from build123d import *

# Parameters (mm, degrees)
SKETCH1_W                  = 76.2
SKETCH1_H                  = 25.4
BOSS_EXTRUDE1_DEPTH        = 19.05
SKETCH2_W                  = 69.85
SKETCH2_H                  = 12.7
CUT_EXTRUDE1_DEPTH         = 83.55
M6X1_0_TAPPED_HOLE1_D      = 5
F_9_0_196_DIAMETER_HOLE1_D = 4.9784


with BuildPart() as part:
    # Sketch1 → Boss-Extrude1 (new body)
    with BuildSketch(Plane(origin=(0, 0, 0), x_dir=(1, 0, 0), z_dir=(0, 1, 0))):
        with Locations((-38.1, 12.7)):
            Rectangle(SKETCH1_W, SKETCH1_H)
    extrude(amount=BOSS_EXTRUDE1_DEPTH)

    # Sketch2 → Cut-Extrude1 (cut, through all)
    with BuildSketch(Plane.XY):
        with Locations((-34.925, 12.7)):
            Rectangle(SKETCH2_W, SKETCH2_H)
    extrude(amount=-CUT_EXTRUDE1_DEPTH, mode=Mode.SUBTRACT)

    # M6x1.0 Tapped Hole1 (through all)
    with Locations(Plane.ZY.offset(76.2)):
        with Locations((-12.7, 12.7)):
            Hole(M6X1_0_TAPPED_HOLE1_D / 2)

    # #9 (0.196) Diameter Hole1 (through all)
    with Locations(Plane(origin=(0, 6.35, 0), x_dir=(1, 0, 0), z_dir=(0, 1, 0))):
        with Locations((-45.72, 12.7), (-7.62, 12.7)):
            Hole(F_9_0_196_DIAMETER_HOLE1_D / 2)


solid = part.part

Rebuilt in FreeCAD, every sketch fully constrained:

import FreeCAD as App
import Part
import Sketcher
Q = App.Units.Quantity

doc = App.newDocument("Part")
body = doc.addObject("PartDesign::Body", "Body")

# Sketch on XZ plane
sketch1 = body.newObject("Sketcher::SketchObject", "Sketch")
sketch1.AttachmentSupport = (doc.getObject("XZ_Plane"), [""])
sketch1.MapMode = "FlatFace"
sketch1.addGeometry([
    Part.LineSegment(App.Vector(-76, -25, 0), App.Vector(-76, 0, 0)),
    Part.LineSegment(App.Vector(-76, 0, 0), App.Vector(0, 0, 0)),
    Part.LineSegment(App.Vector(0, 0, 0), App.Vector(0, -25, 0)),
    Part.LineSegment(App.Vector(0, -25, 0), App.Vector(-76, -25, 0)),
], False)
sketch1.addConstraint([
    Sketcher.Constraint("Coincident", 0, 2, 1, 1),
    Sketcher.Constraint("Coincident", 1, 2, 2, 1),
    Sketcher.Constraint("Coincident", 2, 2, 3, 1),
    Sketcher.Constraint("Coincident", 3, 2, 0, 1),
    Sketcher.Constraint("Vertical", 0),
    Sketcher.Constraint("Horizontal", 1),
    Sketcher.Constraint("Vertical", 2),
    Sketcher.Constraint("Horizontal", 3),
    Sketcher.Constraint("Coincident", 1, 2, -1, 1),
    Sketcher.Constraint("DistanceX", 1, 1, 1, 2, Q("3 in")),
    Sketcher.Constraint("DistanceY", 0, 1, 0, 2, Q("1 in")),
])
pad1 = body.newObject("PartDesign::Pad", "Pad")
pad1.Profile = sketch1
pad1.Length = Q("0.75 in")
pad1.Reversed = True

# Sketch on XY plane
sketch2 = body.newObject("Sketcher::SketchObject", "Sketch001")
sketch2.AttachmentSupport = (doc.getObject("XY_Plane"), [""])
sketch2.MapMode = "FlatFace"
sketch2.addGeometry([
    Part.LineSegment(App.Vector(-70, 19, 0), App.Vector(-70, 6, 0)),
    Part.LineSegment(App.Vector(-70, 6, 0), App.Vector(0, 6, 0)),
    Part.LineSegment(App.Vector(0, 6, 0), App.Vector(0, 19, 0)),
    Part.LineSegment(App.Vector(0, 19, 0), App.Vector(-70, 19, 0)),
], False)
sketch2.addConstraint([
    Sketcher.Constraint("Coincident", 0, 2, 1, 1),
    Sketcher.Constraint("Coincident", 1, 2, 2, 1),
    Sketcher.Constraint("Coincident", 2, 2, 3, 1),
    Sketcher.Constraint("Coincident", 3, 2, 0, 1),
    Sketcher.Constraint("Vertical", 0),
    Sketcher.Constraint("Horizontal", 1),
    Sketcher.Constraint("Vertical", 2),
    Sketcher.Constraint("Horizontal", 3),
    Sketcher.Constraint("PointOnObject", 1, 2, -2),
    Sketcher.Constraint("DistanceY", 0, 2, 0, 1, Q("0.5 in")),
    Sketcher.Constraint("DistanceX", 1, 1, 1, 2, Q("2.75 in")),
    Sketcher.Constraint("DistanceY", -1, 1, 0, 2, Q("0.25 in")),
])
pocket1 = body.newObject("PartDesign::Pocket", "Pocket")
pocket1.Profile = sketch2
pocket1.Type = "ThroughAll"

# Sketch on YZ plane
sketch3 = body.newObject("Sketcher::SketchObject", "Sketch002")
sketch3.AttachmentSupport = (doc.getObject("YZ_Plane"), [""])
sketch3.MapMode = "FlatFace"
sketch3.AttachmentOffset = App.Placement(App.Vector(0, 0, -3 * 25.4), App.Rotation())
sketch3.addGeometry(Part.Circle(App.Vector(12.7, -12.7, 0), App.Vector(0, 0, 1), 2.5), False)
sketch3.addConstraint([
    Sketcher.Constraint("DistanceX", -1, 1, 0, 3, Q("0.5 in")),
    Sketcher.Constraint("DistanceY", 0, 3, -1, 1, Q("0.5 in")),
    Sketcher.Constraint("Diameter", 0, 5.0),
])
doc.recompute()
hole = body.newObject("PartDesign::Hole", "Hole")
hole.Profile = sketch3
hole.ThreadType = "None"
hole.Diameter = 5
hole.DepthType = "ThroughAll"
hole.Reversed = True

# Sketch on XZ plane
sketch4 = body.newObject("Sketcher::SketchObject", "Sketch003")
sketch4.AttachmentSupport = (doc.getObject("XZ_Plane"), [""])
sketch4.MapMode = "FlatFace"
sketch4.AttachmentOffset = App.Placement(App.Vector(0, 0, -0.25 * 25.4), App.Rotation())
sketch4.addGeometry([
    Part.Circle(App.Vector(-45.7, -12.7, 0), App.Vector(0, 0, 1), 2.5),
    Part.Circle(App.Vector(-7.6, -12.7, 0), App.Vector(0, 0, 1), 2.5),
], False)
sketch4.addConstraint([
    Sketcher.Constraint("Equal", 0, 1),
    Sketcher.Constraint("Horizontal", 0, 3, 1, 3),
    Sketcher.Constraint("Diameter", 0, Q("0.196 in")),
    Sketcher.Constraint("DistanceX", 0, 3, -1, 1, Q("1.8 in")),
    Sketcher.Constraint("DistanceY", 0, 3, -1, 1, Q("0.5 in")),
    Sketcher.Constraint("DistanceX", 1, 3, -1, 1, Q("0.3 in")),
])
doc.recompute()
hole2 = body.newObject("PartDesign::Hole", "Hole001")
hole2.Profile = sketch4
hole2.ThreadType = "None"
hole2.Diameter = Q("0.196 in")
hole2.DepthType = "ThroughAll"
hole2.Reversed = True

doc.recompute()
